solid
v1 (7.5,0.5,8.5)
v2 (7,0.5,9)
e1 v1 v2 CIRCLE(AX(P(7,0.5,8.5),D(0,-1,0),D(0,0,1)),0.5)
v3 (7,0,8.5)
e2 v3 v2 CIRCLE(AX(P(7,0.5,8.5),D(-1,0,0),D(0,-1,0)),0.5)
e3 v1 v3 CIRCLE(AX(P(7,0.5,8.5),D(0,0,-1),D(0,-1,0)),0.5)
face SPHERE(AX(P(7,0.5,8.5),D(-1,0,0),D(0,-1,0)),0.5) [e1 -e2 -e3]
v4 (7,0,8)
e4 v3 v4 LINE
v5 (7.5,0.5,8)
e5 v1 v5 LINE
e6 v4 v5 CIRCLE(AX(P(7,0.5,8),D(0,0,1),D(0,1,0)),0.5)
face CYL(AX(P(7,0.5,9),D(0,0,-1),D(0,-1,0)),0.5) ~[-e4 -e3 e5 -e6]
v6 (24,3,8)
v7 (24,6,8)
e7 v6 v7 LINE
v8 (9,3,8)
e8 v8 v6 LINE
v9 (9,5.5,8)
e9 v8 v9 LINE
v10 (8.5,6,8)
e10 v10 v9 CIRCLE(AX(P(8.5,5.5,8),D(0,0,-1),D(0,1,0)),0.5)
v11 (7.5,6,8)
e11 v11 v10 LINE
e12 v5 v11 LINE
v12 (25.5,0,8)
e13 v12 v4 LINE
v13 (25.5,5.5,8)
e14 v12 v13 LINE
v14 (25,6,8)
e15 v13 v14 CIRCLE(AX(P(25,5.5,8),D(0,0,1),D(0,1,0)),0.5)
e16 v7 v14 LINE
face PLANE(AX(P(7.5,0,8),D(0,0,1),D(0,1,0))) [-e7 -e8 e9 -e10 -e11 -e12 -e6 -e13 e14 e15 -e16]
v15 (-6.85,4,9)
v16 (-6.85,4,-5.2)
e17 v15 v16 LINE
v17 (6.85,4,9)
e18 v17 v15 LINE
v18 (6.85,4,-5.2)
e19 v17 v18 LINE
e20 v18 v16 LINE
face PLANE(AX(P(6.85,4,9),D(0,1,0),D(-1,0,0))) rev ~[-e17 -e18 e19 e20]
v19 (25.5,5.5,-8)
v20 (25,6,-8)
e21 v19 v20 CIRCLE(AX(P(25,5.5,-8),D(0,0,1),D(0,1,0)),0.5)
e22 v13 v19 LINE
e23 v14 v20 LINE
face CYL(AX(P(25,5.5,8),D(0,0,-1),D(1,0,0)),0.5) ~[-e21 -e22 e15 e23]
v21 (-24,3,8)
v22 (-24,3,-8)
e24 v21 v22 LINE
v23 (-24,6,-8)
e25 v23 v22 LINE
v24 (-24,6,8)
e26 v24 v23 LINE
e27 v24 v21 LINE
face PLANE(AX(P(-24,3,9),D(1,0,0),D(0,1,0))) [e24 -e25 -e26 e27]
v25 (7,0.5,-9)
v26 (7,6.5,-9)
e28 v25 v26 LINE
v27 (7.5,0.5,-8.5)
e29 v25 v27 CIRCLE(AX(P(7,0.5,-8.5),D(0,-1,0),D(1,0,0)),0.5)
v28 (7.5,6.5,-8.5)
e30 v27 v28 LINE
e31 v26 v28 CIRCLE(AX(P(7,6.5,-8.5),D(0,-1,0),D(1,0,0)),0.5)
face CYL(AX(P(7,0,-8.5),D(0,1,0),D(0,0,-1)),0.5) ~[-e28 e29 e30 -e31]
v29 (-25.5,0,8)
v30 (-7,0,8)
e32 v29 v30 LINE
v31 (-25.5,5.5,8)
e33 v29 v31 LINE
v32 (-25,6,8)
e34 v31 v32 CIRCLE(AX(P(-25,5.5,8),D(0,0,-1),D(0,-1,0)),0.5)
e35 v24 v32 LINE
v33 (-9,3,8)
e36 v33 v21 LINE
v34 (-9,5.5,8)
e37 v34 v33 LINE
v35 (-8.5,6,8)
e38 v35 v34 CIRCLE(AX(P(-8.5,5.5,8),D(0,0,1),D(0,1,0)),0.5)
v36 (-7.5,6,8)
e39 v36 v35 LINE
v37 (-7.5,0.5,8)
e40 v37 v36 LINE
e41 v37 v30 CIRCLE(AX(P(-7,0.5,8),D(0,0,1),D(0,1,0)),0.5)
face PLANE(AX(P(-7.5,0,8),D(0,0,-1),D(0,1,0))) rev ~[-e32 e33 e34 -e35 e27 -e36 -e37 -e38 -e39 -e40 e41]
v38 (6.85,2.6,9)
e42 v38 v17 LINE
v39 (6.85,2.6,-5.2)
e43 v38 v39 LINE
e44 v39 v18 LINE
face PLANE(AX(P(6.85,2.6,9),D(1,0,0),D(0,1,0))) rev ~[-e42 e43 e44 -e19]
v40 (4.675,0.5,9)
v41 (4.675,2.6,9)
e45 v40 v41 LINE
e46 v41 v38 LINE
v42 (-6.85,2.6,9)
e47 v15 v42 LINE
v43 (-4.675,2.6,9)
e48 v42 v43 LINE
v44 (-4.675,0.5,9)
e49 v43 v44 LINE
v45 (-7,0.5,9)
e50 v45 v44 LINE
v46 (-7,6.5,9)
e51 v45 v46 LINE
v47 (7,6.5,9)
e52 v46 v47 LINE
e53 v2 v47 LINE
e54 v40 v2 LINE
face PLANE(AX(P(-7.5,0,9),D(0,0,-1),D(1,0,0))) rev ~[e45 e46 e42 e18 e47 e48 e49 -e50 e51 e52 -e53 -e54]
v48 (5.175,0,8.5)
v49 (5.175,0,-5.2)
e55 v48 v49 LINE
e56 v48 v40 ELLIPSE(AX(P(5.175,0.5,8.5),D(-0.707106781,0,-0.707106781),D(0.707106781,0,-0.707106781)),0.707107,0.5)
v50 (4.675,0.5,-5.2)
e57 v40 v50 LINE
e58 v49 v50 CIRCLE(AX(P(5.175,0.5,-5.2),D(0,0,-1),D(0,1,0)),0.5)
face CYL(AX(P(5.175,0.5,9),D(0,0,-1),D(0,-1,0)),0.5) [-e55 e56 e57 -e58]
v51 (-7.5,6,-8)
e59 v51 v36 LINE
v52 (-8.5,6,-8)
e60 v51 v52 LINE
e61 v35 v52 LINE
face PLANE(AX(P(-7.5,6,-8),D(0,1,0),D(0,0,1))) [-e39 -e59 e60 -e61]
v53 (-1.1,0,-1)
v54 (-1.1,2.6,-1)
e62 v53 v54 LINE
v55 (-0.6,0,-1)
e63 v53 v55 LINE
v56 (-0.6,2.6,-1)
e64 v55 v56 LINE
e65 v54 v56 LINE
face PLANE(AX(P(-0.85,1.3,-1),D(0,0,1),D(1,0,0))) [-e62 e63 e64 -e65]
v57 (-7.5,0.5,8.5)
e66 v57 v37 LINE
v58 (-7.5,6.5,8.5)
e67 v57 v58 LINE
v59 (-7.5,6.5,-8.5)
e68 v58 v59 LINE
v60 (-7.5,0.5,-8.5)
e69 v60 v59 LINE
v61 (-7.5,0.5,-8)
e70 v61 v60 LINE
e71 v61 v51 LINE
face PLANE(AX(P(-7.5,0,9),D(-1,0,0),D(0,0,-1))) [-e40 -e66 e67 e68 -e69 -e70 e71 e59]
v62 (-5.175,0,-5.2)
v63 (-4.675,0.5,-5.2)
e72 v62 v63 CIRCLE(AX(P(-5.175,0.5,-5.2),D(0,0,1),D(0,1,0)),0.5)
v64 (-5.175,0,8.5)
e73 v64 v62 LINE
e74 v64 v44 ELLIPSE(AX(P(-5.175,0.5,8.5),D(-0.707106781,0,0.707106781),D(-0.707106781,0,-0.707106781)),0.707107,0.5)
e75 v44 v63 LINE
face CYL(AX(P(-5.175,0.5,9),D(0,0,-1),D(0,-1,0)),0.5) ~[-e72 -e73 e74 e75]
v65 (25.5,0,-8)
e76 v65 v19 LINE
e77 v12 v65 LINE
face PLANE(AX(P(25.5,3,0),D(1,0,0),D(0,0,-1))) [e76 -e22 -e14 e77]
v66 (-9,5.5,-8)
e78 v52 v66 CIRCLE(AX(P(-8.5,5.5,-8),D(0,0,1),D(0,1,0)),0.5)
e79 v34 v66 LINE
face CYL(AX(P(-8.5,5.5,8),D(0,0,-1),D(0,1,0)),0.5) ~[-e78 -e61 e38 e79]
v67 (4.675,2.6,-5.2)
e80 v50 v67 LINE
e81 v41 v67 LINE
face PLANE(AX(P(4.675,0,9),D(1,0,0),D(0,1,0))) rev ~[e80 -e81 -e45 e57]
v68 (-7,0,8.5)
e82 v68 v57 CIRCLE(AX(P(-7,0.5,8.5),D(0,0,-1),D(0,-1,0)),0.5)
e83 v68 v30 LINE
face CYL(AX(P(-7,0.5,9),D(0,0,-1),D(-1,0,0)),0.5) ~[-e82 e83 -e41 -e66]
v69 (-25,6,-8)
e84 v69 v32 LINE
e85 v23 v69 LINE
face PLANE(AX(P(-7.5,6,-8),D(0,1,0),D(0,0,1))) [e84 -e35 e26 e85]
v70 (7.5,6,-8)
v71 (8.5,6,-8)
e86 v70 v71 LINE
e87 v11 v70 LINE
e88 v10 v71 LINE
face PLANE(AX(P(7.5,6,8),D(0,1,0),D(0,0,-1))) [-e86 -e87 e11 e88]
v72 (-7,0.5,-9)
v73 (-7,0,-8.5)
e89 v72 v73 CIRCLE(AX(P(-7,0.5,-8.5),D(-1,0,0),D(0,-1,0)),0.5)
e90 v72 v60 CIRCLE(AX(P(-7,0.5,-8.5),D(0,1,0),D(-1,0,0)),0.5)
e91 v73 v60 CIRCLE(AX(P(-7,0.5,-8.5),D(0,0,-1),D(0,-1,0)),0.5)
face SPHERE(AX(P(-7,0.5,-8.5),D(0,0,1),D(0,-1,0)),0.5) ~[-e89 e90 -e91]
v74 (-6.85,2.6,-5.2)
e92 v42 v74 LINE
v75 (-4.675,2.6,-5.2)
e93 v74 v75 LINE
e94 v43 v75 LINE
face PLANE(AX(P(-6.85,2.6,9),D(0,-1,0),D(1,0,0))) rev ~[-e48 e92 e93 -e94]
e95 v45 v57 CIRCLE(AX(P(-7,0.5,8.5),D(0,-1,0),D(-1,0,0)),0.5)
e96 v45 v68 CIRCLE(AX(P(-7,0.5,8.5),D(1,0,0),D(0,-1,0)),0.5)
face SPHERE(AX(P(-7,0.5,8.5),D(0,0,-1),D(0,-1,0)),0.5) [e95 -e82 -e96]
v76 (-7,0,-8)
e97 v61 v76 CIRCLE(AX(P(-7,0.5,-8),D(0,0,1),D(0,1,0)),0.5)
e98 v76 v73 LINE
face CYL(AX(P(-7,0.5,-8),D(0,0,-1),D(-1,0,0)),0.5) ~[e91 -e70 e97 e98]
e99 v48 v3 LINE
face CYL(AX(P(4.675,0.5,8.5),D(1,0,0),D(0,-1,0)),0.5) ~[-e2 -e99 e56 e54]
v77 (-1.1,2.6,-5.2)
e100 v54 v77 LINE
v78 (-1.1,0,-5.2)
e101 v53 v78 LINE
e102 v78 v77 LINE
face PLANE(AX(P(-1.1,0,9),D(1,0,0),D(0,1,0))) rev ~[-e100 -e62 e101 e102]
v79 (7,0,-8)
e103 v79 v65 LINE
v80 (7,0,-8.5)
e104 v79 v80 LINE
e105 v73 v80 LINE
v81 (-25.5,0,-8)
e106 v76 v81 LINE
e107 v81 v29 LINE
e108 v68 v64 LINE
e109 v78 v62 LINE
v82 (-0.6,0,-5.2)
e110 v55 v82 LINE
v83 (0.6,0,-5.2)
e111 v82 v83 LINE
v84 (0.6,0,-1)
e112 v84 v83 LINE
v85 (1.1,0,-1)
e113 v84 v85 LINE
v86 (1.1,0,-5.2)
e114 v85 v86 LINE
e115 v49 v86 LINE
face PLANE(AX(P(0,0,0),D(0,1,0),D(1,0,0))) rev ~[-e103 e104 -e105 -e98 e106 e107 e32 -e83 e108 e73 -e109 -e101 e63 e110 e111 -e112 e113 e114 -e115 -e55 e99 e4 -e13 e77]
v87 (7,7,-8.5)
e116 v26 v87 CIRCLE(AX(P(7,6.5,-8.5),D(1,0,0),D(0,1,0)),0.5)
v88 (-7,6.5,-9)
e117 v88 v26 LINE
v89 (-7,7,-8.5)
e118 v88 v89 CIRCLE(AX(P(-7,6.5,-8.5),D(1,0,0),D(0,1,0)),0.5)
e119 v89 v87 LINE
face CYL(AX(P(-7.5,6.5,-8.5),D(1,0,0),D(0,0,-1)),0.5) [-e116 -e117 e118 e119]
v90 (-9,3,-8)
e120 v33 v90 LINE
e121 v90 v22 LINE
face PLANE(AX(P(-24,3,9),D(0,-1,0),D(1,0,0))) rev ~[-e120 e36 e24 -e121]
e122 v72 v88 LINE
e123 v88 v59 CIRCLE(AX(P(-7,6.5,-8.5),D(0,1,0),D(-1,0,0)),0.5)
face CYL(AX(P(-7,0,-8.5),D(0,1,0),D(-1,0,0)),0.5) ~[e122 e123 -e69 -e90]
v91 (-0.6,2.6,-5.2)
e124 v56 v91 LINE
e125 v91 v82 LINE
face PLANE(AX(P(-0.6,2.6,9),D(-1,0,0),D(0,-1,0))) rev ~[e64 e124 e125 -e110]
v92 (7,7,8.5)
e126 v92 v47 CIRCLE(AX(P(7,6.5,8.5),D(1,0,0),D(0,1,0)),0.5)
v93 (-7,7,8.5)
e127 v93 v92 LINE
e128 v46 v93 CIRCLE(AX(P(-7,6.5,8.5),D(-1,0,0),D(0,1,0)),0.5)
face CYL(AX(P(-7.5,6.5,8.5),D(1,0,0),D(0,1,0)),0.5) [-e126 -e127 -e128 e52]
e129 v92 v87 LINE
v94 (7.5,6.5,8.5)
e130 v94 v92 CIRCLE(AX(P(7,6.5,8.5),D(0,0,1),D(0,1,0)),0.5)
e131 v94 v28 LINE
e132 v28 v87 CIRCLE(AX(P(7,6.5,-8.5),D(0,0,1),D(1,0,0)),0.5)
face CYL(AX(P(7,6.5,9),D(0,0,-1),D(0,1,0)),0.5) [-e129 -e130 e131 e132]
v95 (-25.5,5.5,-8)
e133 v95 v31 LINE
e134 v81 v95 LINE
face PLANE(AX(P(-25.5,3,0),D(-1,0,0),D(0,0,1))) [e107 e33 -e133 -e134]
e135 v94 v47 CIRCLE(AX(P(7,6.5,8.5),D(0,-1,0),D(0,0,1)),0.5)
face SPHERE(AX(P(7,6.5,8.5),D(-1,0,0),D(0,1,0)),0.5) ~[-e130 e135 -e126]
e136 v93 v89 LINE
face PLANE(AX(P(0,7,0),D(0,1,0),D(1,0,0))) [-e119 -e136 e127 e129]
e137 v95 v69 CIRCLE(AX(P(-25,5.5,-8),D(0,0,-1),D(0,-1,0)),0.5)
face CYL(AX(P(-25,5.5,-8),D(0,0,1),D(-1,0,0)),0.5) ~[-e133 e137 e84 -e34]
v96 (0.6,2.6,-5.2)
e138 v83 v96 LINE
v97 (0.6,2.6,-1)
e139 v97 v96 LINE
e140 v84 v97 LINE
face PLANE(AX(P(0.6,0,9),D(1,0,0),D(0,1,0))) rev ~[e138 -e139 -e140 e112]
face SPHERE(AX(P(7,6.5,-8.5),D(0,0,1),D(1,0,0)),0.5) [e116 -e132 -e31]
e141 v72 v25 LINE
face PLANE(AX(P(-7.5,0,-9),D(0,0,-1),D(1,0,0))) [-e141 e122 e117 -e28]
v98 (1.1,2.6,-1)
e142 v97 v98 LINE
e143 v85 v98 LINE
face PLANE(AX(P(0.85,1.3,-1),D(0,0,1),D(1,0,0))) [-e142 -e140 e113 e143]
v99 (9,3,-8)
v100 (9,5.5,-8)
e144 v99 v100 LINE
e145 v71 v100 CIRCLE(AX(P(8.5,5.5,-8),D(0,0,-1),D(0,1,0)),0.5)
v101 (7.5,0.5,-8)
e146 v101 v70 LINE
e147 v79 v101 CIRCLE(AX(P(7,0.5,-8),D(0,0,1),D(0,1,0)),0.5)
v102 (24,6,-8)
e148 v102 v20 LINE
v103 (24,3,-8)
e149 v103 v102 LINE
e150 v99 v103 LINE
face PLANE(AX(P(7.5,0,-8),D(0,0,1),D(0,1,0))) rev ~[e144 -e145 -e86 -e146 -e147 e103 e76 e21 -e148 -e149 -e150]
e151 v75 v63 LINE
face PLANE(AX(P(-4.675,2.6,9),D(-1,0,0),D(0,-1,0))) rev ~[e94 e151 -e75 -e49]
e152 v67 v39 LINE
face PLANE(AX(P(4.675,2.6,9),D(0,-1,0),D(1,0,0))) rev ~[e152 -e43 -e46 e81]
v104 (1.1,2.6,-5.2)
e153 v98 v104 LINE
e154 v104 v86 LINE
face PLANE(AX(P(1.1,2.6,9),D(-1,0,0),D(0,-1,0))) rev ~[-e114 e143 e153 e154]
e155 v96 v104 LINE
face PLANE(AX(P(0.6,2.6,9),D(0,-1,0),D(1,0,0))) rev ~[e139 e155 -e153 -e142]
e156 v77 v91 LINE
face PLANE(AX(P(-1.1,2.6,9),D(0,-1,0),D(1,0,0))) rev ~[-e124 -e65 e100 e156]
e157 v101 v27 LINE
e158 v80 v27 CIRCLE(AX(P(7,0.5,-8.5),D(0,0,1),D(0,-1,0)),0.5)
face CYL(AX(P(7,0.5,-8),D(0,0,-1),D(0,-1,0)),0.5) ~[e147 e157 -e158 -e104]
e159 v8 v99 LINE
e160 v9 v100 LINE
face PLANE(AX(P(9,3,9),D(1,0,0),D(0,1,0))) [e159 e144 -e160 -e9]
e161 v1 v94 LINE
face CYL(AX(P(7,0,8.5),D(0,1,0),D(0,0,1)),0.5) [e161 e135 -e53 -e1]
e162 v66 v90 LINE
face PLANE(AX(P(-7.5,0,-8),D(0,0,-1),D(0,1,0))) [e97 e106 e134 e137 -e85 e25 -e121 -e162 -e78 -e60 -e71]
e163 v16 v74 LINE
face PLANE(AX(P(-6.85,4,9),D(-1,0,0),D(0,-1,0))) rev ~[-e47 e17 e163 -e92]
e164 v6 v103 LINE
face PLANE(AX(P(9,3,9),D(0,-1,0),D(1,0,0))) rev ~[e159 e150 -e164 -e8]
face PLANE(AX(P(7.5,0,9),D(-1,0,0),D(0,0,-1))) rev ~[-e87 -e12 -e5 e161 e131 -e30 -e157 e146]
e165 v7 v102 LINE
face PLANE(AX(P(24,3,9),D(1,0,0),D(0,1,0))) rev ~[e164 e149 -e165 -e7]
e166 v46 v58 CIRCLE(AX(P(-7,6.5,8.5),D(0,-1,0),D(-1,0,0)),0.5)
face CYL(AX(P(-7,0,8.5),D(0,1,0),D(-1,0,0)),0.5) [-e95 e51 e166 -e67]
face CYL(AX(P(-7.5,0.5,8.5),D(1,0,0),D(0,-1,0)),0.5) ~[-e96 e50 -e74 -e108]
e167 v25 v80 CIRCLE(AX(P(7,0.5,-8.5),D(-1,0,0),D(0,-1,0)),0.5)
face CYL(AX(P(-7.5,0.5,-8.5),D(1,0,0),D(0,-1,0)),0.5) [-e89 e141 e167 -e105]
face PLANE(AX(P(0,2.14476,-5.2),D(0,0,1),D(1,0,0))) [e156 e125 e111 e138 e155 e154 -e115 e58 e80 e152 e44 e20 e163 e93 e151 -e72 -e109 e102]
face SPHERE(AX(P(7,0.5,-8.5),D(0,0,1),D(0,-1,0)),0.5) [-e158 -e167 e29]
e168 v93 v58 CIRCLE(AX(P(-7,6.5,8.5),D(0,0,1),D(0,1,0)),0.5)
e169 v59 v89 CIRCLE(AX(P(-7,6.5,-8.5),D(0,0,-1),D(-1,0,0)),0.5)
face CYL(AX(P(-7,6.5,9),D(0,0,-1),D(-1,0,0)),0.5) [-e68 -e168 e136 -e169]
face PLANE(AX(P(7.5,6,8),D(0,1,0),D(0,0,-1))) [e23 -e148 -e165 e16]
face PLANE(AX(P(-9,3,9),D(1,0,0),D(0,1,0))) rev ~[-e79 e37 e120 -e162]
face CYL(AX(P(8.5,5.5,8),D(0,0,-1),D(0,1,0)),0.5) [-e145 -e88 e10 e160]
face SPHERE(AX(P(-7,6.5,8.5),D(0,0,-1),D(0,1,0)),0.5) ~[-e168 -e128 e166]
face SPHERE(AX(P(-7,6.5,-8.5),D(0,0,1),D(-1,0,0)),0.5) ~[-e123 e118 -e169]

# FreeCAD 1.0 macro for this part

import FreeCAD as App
import Part
import Sketcher

V = App.Vector
Q = App.Units.Quantity


def edges_at(feature, points):
    """Names of the edges that pass closest to the given points."""
    edges = feature.Shape.Edges
    near = lambda p: min(range(len(edges)), key=lambda i: edges[i].distToShape(Part.Vertex(*p))[0])
    return sorted({f"Edge{near(p) + 1}" for p in points})


def add_polygon(sketch, points):
    """Adds a closed chain of lines whose ends are joined by coincident constraints."""
    first, n = sketch.GeometryCount, len(points)
    for a, b in zip(points, points[1:] + points[:1]):
        sketch.addGeometry(Part.LineSegment(App.Vector(*a, 0), App.Vector(*b, 0)), False)
    for i in range(n):
        sketch.addConstraint(Sketcher.Constraint("Coincident", first + i, 2, first + (i + 1) % n, 1))

doc = App.newDocument("Part")
body = doc.addObject("PartDesign::Body", "Body")

sketch1 = body.newObject("Sketcher::SketchObject", "Sketch")
sketch1.AttachmentSupport = (doc.getObject("XZ_Plane"), [""])
sketch1.MapMode = "FlatFace"
add_polygon(sketch1, [(-8, -9), (-8, 9), (8, 9), (8, -9)])
sketch1.addConstraint(Sketcher.Constraint("Vertical", 0))
sketch1.addConstraint(Sketcher.Constraint("Horizontal", 1))
sketch1.addConstraint(Sketcher.Constraint("Vertical", 2))
sketch1.addConstraint(Sketcher.Constraint("Horizontal", 3))
sketch1.addConstraint(Sketcher.Constraint("Symmetric", 0, 2, 2, 2, -1, 1))
sketch1.addConstraint(Sketcher.Constraint("DistanceX", 1, 1, 1, 2, Q("15 mm")))
sketch1.addConstraint(Sketcher.Constraint("DistanceY", 0, 1, 0, 2, Q("18 mm")))
pad1 = body.newObject("PartDesign::Pad", "Pad")
pad1.Profile = sketch1
pad1.Length = 7
pad1.Reversed = True

sketch2 = body.newObject("Sketcher::SketchObject", "Sketch001")
sketch2.AttachmentSupport = (doc.getObject("XY_Plane"), [""])
sketch2.MapMode = "FlatFace"
sketch2.AttachmentOffset = App.Placement(V(0, 0, 9), App.Rotation())
add_polygon(sketch2, [(-4.7, 2.6), (-4.7, 0), (-1.1, 0), (-1.1, 2.6), (-0.6, 2.6), (-0.6, 0), (0.6, 0), (0.6, 2.6), (1.1, 2.6), (1.1, 0), (4.7, 0), (4.7, 2.6), (6.8, 2.6), (6.8, 4), (-6.8, 4), (-6.8, 2.6)])
sketch2.addConstraint(Sketcher.Constraint("Vertical", 0))
sketch2.addConstraint(Sketcher.Constraint("Horizontal", 1))
sketch2.addConstraint(Sketcher.Constraint("Vertical", 2))
sketch2.addConstraint(Sketcher.Constraint("Horizontal", 3))
sketch2.addConstraint(Sketcher.Constraint("Vertical", 4))
sketch2.addConstraint(Sketcher.Constraint("Horizontal", 5))
sketch2.addConstraint(Sketcher.Constraint("Vertical", 6))
sketch2.addConstraint(Sketcher.Constraint("Horizontal", 7))
sketch2.addConstraint(Sketcher.Constraint("Vertical", 8))
sketch2.addConstraint(Sketcher.Constraint("Horizontal", 9))
sketch2.addConstraint(Sketcher.Constraint("Vertical", 10))
sketch2.addConstraint(Sketcher.Constraint("Horizontal", 11))
sketch2.addConstraint(Sketcher.Constraint("Vertical", 12))
sketch2.addConstraint(Sketcher.Constraint("Horizontal", 13))
sketch2.addConstraint(Sketcher.Constraint("Vertical", 14))
sketch2.addConstraint(Sketcher.Constraint("Horizontal", 15))
sketch2.addConstraint(Sketcher.Constraint("Symmetric", 4, 2, 5, 2, -1, 1))
sketch2.addConstraint(Sketcher.Constraint("Symmetric", 1, 2, 8, 2, -1, 1))
sketch2.addConstraint(Sketcher.Constraint("Symmetric", 0, 2, 9, 2, -2))
sketch2.addConstraint(Sketcher.Constraint("Symmetric", 11, 2, 14, 2, -2))
sketch2.addConstraint(Sketcher.Constraint("Horizontal", 3, 2, 6, 2))
sketch2.addConstraint(Sketcher.Constraint("Horizontal", 7, 2, 10, 2))
sketch2.addConstraint(Sketcher.Constraint("DistanceX", 3, 1, 3, 2, Q("0.5 mm")))
sketch2.addConstraint(Sketcher.Constraint("DistanceX", 5, 1, 5, 2, Q("1.2 mm")))
sketch2.addConstraint(Sketcher.Constraint("DistanceX", 13, 2, 13, 1, Q("13.7 mm")))
sketch2.addConstraint(Sketcher.Constraint("DistanceY", 0, 2, 0, 1, Q("2.6 mm")))
sketch2.addConstraint(Sketcher.Constraint("DistanceY", 12, 1, 12, 2, Q("1.4 mm")))
sketch2.addConstraint(Sketcher.Constraint("DistanceX", 1, 1, 1, 2, Q("3.575 mm")))
pocket1 = body.newObject("PartDesign::Pocket", "Pocket")
pocket1.Profile = sketch2
pocket1.Length = 14.2

sketch3 = body.newObject("Sketcher::SketchObject", "Sketch002")
sketch3.AttachmentSupport = (doc.getObject("XY_Plane"), [""])
sketch3.MapMode = "FlatFace"
sketch3.AttachmentOffset = App.Placement(V(0, 0, 9), App.Rotation())
add_polygon(sketch3, [(-1.1, 2.6), (-1.1, 0), (-0.6, 0), (-0.6, 2.6)])
add_polygon(sketch3, [(0.6, 2.6), (0.6, 0), (1.1, 0), (1.1, 2.6)])
sketch3.addConstraint(Sketcher.Constraint("Vertical", 0))
sketch3.addConstraint(Sketcher.Constraint("Horizontal", 1))
sketch3.addConstraint(Sketcher.Constraint("Vertical", 2))
sketch3.addConstraint(Sketcher.Constraint("Horizontal", 3))
sketch3.addConstraint(Sketcher.Constraint("Vertical", 4))
sketch3.addConstraint(Sketcher.Constraint("Horizontal", 5))
sketch3.addConstraint(Sketcher.Constraint("Vertical", 6))
sketch3.addConstraint(Sketcher.Constraint("Horizontal", 7))
sketch3.addConstraint(Sketcher.Constraint("Symmetric", 1, 2, 4, 2, -1, 1))
sketch3.addConstraint(Sketcher.Constraint("Symmetric", 0, 2, 5, 2, -2))
sketch3.addConstraint(Sketcher.Constraint("Horizontal", 3, 2, 6, 2))
sketch3.addConstraint(Sketcher.Constraint("DistanceX", 1, 1, 1, 2, Q("0.5 mm")))
sketch3.addConstraint(Sketcher.Constraint("DistanceY", 0, 2, 0, 1, Q("2.6 mm")))
sketch3.addConstraint(Sketcher.Constraint("DistanceX", 0, 2, -1, 1, Q("1.1 mm")))
pocket2 = body.newObject("PartDesign::Pocket", "Pocket001")
pocket2.Profile = sketch3
pocket2.Length = 10

sketch4 = body.newObject("Sketcher::SketchObject", "Sketch003")
sketch4.AttachmentSupport = (doc.getObject("YZ_Plane"), [""])
sketch4.MapMode = "FlatFace"
sketch4.AttachmentOffset = App.Placement(V(0, 0, -7.5), App.Rotation())
add_polygon(sketch4, [(6, -8), (0, -8), (0, 8), (6, 8)])
sketch4.addConstraint(Sketcher.Constraint("Horizontal", 0))
sketch4.addConstraint(Sketcher.Constraint("Vertical", 1))
sketch4.addConstraint(Sketcher.Constraint("Horizontal", 2))
sketch4.addConstraint(Sketcher.Constraint("Vertical", 3))
sketch4.addConstraint(Sketcher.Constraint("Symmetric", 0, 2, 1, 2, -1, 1))
sketch4.addConstraint(Sketcher.Constraint("DistanceX", 0, 2, 0, 1, Q("6 mm")))
sketch4.addConstraint(Sketcher.Constraint("DistanceY", 1, 1, 1, 2, Q("16 mm")))
pad2 = body.newObject("PartDesign::Pad", "Pad001")
pad2.Profile = sketch4
pad2.Length = 18
pad2.Reversed = True

sketch5 = body.newObject("Sketcher::SketchObject", "Sketch004")
sketch5.AttachmentSupport = (doc.getObject("YZ_Plane"), [""])
sketch5.MapMode = "FlatFace"
sketch5.AttachmentOffset = App.Placement(V(0, 0, 7.5), App.Rotation())
add_polygon(sketch5, [(6, 8), (0, 8), (0, -8), (6, -8)])
sketch5.addConstraint(Sketcher.Constraint("Horizontal", 0))
sketch5.addConstraint(Sketcher.Constraint("Vertical", 1))
sketch5.addConstraint(Sketcher.Constraint("Horizontal", 2))
sketch5.addConstraint(Sketcher.Constraint("Vertical", 3))
sketch5.addConstraint(Sketcher.Constraint("Symmetric", 0, 2, 1, 2, -1, 1))
sketch5.addConstraint(Sketcher.Constraint("DistanceX", 0, 2, 0, 1, Q("6 mm")))
sketch5.addConstraint(Sketcher.Constraint("DistanceY", 1, 2, 1, 1, Q("16 mm")))
pad3 = body.newObject("PartDesign::Pad", "Pad002")
pad3.Profile = sketch5
pad3.Length = 18

sketch6 = body.newObject("Sketcher::SketchObject", "Sketch005")
sketch6.AttachmentSupport = (doc.getObject("XY_Plane"), [""])
sketch6.MapMode = "FlatFace"
sketch6.AttachmentOffset = App.Placement(V(0, 0, 9), App.Rotation())
add_polygon(sketch6, [(9, 6), (9, 3), (24, 3), (24, 6)])
add_polygon(sketch6, [(-24, 6), (-24, 3), (-9, 3), (-9, 6)])
sketch6.addConstraint(Sketcher.Constraint("Vertical", 0))
sketch6.addConstraint(Sketcher.Constraint("Horizontal", 1))
sketch6.addConstraint(Sketcher.Constraint("Vertical", 2))
sketch6.addConstraint(Sketcher.Constraint("Horizontal", 3))
sketch6.addConstraint(Sketcher.Constraint("Vertical", 4))
sketch6.addConstraint(Sketcher.Constraint("Horizontal", 5))
sketch6.addConstraint(Sketcher.Constraint("Vertical", 6))
sketch6.addConstraint(Sketcher.Constraint("Horizontal", 7))
sketch6.addConstraint(Sketcher.Constraint("Symmetric", 1, 2, 4, 2, -2))
sketch6.addConstraint(Sketcher.Constraint("Symmetric", 3, 2, 6, 2, -2))
sketch6.addConstraint(Sketcher.Constraint("DistanceX", 1, 1, 1, 2, Q("15 mm")))
sketch6.addConstraint(Sketcher.Constraint("DistanceY", 0, 2, 0, 1, Q("3 mm")))
sketch6.addConstraint(Sketcher.Constraint("DistanceX", -1, 1, 0, 2, Q("9 mm")))
sketch6.addConstraint(Sketcher.Constraint("DistanceY", -1, 1, 0, 2, Q("3 mm")))
pocket3 = body.newObject("PartDesign::Pocket", "Pocket002")
pocket3.Profile = sketch6
pocket3.Length = 32.55
doc.recompute()

fillet = body.newObject("PartDesign::Fillet", "Fillet")
fillet.Base = (pocket3, edges_at(pocket3, [
    (-7.5, 0, 8.5),
    (-25.5, 6, 0),
    (7.5, 0, -8.5),
    (25.5, 6, 0),
    (-7.5, 7, 0),
    (9, 6, 0),
    (-9, 6, 0),
    (6.088, 0, 9),
    (0, 7, 9),
    (4.675, 0, 1.9),
    (-4.675, 0, 1.9),
    (7.5, 7, 0),
    (-6.088, 0, 9),
    (-7.5, 0, -8.5),
    (0, 0, -9),
    (7.5, 0, 8.5),
    (7.5, 3.5, 9),
    (-7.5, 3.5, 9),
    (-7.5, 3.5, -9),
    (7.5, 3.5, -9),
    (0, 7, -9),
]))
fillet.Radius = 0.5

doc.recompute()
